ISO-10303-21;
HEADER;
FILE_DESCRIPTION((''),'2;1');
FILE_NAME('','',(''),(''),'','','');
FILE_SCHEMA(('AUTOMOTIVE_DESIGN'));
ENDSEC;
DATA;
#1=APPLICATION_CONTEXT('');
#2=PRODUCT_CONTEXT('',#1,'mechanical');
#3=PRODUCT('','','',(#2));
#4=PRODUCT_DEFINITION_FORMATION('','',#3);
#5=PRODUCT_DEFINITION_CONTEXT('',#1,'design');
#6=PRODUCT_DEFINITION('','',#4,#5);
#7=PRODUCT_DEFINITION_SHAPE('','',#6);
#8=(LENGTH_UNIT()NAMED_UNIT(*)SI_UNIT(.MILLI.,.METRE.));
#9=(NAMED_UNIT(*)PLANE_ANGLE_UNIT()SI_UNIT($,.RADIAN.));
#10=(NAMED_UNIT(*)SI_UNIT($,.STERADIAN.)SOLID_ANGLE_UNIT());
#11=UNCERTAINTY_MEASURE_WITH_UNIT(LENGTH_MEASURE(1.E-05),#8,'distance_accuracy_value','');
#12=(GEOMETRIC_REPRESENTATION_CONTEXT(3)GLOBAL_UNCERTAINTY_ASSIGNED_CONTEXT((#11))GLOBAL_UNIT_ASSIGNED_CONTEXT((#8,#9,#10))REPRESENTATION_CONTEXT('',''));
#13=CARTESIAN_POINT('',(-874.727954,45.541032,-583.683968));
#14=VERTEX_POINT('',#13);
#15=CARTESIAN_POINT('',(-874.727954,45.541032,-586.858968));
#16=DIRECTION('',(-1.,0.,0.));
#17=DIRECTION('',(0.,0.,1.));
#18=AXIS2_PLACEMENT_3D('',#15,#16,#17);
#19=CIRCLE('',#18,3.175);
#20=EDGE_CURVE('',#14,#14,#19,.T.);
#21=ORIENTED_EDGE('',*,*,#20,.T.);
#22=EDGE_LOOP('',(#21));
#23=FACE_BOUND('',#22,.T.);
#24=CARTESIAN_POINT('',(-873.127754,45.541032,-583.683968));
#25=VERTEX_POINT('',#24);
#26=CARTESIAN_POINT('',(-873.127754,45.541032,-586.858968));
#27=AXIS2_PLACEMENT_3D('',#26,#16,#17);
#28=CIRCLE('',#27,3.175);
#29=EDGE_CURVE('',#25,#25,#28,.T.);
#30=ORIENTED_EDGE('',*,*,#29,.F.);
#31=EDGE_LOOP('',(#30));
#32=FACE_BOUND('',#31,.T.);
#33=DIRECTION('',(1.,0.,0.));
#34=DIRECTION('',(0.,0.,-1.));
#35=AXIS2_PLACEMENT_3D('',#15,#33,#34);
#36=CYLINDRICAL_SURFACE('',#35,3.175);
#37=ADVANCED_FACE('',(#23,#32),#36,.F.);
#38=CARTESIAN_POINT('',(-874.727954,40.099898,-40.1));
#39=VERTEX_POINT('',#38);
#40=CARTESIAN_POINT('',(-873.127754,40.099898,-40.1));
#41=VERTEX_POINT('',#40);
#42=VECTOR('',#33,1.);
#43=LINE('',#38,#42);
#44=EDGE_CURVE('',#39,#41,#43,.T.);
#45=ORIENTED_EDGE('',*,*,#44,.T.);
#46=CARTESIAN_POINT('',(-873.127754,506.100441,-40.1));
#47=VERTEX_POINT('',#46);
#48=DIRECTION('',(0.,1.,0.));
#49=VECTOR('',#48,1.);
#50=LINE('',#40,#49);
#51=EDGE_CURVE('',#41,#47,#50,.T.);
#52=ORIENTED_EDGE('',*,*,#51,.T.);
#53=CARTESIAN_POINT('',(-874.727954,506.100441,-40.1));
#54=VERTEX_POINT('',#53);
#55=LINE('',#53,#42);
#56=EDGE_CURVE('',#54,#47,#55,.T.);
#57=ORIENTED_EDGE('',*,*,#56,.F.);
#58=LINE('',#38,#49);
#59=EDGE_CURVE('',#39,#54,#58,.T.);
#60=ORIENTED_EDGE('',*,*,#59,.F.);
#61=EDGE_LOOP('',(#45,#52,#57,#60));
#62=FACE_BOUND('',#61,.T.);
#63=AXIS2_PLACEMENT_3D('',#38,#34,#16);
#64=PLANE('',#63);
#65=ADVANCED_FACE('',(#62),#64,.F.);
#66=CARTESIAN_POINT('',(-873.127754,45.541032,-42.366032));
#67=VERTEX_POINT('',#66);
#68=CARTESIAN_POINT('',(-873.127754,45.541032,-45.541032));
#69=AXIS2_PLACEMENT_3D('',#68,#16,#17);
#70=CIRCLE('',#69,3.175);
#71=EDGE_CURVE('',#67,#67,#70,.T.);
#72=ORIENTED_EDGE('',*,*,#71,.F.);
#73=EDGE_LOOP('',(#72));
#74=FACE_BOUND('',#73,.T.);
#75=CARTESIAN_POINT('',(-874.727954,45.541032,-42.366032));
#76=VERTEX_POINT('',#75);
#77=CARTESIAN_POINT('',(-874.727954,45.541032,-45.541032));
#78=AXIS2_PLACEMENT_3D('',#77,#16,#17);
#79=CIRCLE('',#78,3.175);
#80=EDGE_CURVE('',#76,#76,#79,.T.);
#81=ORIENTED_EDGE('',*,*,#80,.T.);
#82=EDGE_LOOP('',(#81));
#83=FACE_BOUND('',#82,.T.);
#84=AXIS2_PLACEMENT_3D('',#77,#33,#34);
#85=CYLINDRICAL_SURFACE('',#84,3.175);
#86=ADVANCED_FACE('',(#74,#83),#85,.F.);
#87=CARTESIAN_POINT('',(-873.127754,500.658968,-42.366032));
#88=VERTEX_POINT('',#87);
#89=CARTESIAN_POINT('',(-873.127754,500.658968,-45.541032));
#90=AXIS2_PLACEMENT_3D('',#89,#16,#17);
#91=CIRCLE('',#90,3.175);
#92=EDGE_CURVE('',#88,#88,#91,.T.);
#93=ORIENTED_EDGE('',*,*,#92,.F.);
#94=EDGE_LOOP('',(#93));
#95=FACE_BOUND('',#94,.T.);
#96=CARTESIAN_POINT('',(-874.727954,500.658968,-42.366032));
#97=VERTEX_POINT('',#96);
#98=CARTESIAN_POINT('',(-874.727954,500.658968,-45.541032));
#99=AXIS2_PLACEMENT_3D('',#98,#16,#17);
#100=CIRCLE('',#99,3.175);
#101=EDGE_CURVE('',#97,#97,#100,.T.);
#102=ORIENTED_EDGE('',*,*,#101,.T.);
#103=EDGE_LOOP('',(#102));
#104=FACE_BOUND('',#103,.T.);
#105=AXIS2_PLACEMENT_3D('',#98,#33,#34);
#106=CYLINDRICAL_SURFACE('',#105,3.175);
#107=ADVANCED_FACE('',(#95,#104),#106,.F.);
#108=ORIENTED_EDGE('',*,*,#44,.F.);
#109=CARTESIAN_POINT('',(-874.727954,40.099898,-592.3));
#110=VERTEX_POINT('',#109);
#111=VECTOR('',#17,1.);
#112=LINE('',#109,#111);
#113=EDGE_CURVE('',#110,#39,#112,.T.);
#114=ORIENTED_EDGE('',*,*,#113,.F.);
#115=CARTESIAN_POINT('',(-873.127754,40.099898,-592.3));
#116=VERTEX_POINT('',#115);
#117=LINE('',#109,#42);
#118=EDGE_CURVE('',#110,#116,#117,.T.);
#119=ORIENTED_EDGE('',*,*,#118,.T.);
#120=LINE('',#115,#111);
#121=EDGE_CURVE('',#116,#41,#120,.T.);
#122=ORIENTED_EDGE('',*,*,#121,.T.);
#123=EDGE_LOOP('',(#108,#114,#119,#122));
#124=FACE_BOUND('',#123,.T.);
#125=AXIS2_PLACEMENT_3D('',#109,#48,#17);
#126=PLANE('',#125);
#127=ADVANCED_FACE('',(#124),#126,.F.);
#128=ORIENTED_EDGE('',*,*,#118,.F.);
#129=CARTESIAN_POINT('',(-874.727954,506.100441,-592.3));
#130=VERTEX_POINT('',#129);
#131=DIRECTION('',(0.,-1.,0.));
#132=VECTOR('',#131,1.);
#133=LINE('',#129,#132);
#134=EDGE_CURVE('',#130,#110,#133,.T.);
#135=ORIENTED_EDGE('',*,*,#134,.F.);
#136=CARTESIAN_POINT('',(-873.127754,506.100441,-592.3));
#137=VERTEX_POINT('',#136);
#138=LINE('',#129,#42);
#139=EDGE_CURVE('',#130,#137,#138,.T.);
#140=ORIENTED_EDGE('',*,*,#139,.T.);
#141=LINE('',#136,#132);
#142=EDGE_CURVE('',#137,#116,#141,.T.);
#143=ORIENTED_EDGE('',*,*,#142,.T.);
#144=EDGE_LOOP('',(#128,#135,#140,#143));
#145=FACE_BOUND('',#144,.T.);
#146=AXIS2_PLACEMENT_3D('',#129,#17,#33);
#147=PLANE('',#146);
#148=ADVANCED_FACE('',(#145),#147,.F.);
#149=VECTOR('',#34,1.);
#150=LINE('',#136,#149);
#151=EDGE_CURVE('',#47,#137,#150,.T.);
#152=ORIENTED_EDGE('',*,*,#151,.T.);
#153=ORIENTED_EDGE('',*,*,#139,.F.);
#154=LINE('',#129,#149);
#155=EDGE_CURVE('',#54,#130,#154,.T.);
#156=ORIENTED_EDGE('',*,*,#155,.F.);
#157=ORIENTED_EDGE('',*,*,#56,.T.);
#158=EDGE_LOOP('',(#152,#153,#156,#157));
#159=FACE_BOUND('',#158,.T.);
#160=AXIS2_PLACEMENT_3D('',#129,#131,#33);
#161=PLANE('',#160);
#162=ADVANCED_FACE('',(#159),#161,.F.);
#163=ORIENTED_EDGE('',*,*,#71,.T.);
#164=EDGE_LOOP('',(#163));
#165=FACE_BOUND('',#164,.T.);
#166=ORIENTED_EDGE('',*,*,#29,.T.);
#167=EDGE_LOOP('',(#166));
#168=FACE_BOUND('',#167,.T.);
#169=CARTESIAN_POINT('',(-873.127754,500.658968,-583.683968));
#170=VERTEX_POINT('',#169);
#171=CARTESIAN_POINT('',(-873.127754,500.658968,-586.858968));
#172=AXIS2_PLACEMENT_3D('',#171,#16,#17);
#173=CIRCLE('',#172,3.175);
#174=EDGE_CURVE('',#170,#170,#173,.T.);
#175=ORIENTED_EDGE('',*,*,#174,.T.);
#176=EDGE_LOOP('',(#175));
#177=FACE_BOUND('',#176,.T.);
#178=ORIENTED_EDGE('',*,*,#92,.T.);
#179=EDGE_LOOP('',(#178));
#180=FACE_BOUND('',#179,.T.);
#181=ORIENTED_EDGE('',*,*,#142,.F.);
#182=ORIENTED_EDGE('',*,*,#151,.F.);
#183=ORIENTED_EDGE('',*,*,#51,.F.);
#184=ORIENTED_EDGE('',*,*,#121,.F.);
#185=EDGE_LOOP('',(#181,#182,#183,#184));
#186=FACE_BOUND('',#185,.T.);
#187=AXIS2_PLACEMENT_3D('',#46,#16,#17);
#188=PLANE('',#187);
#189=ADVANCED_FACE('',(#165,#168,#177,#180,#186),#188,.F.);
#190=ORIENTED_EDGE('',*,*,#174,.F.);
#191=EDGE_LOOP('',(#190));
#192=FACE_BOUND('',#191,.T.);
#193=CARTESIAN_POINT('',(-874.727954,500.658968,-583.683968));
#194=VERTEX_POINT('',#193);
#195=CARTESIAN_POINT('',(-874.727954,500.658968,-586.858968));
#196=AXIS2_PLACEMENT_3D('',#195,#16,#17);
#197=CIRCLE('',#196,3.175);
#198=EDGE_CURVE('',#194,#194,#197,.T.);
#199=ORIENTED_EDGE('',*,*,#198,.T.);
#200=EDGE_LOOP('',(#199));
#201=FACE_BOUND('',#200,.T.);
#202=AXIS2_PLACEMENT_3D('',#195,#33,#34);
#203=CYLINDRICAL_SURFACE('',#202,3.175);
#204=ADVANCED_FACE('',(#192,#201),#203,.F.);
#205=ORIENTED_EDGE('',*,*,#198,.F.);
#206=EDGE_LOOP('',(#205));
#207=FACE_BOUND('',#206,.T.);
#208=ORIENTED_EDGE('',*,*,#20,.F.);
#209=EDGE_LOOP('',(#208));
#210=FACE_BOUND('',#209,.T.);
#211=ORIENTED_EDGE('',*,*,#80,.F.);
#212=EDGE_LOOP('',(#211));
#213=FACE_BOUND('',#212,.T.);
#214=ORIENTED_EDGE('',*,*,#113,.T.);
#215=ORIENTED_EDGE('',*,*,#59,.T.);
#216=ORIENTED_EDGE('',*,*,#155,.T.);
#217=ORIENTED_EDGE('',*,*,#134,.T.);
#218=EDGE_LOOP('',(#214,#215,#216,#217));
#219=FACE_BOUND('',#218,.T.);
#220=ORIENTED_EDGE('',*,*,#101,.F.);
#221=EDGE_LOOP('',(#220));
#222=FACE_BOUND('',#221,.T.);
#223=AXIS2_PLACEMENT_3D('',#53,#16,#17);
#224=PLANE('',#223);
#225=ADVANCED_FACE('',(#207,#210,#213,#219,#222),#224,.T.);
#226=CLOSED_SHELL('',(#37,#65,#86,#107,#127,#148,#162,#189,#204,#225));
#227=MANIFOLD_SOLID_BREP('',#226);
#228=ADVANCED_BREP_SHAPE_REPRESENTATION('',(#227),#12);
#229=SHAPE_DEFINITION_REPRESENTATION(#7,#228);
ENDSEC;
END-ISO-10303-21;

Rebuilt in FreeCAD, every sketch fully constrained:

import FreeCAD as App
import Part
import Sketcher
from FreeCAD import Vector
Q = App.Units.Quantity


def add_polygon(sketch, points):
    """Adds a closed chain of lines whose ends are joined by coincident constraints."""
    first, n = sketch.GeometryCount, len(points)
    for a, b in zip(points, points[1:] + points[:1]):
        sketch.addGeometry(Part.LineSegment(App.Vector(*a, 0), App.Vector(*b, 0)), False)
    for i in range(n):
        sketch.addConstraint(Sketcher.Constraint("Coincident", first + i, 2, first + (i + 1) % n, 1))

doc = App.newDocument("Part")
body = doc.addObject("PartDesign::Body", "Body")

# Sketch on YZ plane
sketch1 = body.newObject("Sketcher::SketchObject", "Sketch")
sketch1.AttachmentSupport = (doc.getObject("YZ_Plane"), [""])
sketch1.MapMode = "FlatFace"
sketch1.AttachmentOffset = App.Placement(Vector(0, 0, -873.127754), App.Rotation())
add_polygon(sketch1, [(506.100441, -592.3), (40.099898, -592.3), (40.099898, -40.1), (506.100441, -40.1)])  # lines 0-3
sketch1.addGeometry(Part.Circle(Vector(45.541032, -586.858968, 0), Vector(0, 0, 1), 3.175), False)  # 4
sketch1.addGeometry(Part.Circle(Vector(45.541032, -45.541032, 0), Vector(0, 0, 1), 3.175), False)  # 5
sketch1.addGeometry(Part.Circle(Vector(500.658968, -586.858968, 0), Vector(0, 0, 1), 3.175), False)  # 6
sketch1.addGeometry(Part.Circle(Vector(500.658968, -45.541032, 0), Vector(0, 0, 1), 3.175), False)  # 7
sketch1.addConstraint([
    Sketcher.Constraint("Horizontal", 0),
    Sketcher.Constraint("Vertical", 1),
    Sketcher.Constraint("Horizontal", 2),
    Sketcher.Constraint("Vertical", 3),
    Sketcher.Constraint("Equal", 4, 5),
    Sketcher.Constraint("Equal", 5, 6),
    Sketcher.Constraint("Equal", 6, 7),
    Sketcher.Constraint("Horizontal", 4, 3, 6, 3),
    Sketcher.Constraint("Horizontal", 5, 3, 7, 3),
    Sketcher.Constraint("Vertical", 4, 3, 5, 3),
    Sketcher.Constraint("Vertical", 6, 3, 7, 3),
    Sketcher.Constraint("Diameter", 4, Q("0.25 in")),
    Sketcher.Constraint("DistanceY", 1, 1, 1, 2, Q("552.2 mm")),
    Sketcher.Constraint("DistanceX", -1, 1, 0, 2, Q("40.099898 mm")),
    Sketcher.Constraint("DistanceY", 0, 2, -1, 1, Q("592.3 mm")),
    Sketcher.Constraint("DistanceX", 0, 2, 0, 1, Q("466.000542 mm")),
    Sketcher.Constraint("DistanceX", -1, 1, 4, 3, Q("45.541032 mm")),
    Sketcher.Constraint("DistanceY", 4, 3, -1, 1, Q("586.858968 mm")),
    Sketcher.Constraint("DistanceX", -1, 1, 6, 3, Q("500.658968 mm")),
    Sketcher.Constraint("DistanceY", 5, 3, 1, 2, Q("5.441032 mm")),
])
pad1 = body.newObject("PartDesign::Pad", "Pad")
pad1.Profile = sketch1
pad1.Length = Q("0.063 in")
pad1.Reversed = True

doc.recompute()
